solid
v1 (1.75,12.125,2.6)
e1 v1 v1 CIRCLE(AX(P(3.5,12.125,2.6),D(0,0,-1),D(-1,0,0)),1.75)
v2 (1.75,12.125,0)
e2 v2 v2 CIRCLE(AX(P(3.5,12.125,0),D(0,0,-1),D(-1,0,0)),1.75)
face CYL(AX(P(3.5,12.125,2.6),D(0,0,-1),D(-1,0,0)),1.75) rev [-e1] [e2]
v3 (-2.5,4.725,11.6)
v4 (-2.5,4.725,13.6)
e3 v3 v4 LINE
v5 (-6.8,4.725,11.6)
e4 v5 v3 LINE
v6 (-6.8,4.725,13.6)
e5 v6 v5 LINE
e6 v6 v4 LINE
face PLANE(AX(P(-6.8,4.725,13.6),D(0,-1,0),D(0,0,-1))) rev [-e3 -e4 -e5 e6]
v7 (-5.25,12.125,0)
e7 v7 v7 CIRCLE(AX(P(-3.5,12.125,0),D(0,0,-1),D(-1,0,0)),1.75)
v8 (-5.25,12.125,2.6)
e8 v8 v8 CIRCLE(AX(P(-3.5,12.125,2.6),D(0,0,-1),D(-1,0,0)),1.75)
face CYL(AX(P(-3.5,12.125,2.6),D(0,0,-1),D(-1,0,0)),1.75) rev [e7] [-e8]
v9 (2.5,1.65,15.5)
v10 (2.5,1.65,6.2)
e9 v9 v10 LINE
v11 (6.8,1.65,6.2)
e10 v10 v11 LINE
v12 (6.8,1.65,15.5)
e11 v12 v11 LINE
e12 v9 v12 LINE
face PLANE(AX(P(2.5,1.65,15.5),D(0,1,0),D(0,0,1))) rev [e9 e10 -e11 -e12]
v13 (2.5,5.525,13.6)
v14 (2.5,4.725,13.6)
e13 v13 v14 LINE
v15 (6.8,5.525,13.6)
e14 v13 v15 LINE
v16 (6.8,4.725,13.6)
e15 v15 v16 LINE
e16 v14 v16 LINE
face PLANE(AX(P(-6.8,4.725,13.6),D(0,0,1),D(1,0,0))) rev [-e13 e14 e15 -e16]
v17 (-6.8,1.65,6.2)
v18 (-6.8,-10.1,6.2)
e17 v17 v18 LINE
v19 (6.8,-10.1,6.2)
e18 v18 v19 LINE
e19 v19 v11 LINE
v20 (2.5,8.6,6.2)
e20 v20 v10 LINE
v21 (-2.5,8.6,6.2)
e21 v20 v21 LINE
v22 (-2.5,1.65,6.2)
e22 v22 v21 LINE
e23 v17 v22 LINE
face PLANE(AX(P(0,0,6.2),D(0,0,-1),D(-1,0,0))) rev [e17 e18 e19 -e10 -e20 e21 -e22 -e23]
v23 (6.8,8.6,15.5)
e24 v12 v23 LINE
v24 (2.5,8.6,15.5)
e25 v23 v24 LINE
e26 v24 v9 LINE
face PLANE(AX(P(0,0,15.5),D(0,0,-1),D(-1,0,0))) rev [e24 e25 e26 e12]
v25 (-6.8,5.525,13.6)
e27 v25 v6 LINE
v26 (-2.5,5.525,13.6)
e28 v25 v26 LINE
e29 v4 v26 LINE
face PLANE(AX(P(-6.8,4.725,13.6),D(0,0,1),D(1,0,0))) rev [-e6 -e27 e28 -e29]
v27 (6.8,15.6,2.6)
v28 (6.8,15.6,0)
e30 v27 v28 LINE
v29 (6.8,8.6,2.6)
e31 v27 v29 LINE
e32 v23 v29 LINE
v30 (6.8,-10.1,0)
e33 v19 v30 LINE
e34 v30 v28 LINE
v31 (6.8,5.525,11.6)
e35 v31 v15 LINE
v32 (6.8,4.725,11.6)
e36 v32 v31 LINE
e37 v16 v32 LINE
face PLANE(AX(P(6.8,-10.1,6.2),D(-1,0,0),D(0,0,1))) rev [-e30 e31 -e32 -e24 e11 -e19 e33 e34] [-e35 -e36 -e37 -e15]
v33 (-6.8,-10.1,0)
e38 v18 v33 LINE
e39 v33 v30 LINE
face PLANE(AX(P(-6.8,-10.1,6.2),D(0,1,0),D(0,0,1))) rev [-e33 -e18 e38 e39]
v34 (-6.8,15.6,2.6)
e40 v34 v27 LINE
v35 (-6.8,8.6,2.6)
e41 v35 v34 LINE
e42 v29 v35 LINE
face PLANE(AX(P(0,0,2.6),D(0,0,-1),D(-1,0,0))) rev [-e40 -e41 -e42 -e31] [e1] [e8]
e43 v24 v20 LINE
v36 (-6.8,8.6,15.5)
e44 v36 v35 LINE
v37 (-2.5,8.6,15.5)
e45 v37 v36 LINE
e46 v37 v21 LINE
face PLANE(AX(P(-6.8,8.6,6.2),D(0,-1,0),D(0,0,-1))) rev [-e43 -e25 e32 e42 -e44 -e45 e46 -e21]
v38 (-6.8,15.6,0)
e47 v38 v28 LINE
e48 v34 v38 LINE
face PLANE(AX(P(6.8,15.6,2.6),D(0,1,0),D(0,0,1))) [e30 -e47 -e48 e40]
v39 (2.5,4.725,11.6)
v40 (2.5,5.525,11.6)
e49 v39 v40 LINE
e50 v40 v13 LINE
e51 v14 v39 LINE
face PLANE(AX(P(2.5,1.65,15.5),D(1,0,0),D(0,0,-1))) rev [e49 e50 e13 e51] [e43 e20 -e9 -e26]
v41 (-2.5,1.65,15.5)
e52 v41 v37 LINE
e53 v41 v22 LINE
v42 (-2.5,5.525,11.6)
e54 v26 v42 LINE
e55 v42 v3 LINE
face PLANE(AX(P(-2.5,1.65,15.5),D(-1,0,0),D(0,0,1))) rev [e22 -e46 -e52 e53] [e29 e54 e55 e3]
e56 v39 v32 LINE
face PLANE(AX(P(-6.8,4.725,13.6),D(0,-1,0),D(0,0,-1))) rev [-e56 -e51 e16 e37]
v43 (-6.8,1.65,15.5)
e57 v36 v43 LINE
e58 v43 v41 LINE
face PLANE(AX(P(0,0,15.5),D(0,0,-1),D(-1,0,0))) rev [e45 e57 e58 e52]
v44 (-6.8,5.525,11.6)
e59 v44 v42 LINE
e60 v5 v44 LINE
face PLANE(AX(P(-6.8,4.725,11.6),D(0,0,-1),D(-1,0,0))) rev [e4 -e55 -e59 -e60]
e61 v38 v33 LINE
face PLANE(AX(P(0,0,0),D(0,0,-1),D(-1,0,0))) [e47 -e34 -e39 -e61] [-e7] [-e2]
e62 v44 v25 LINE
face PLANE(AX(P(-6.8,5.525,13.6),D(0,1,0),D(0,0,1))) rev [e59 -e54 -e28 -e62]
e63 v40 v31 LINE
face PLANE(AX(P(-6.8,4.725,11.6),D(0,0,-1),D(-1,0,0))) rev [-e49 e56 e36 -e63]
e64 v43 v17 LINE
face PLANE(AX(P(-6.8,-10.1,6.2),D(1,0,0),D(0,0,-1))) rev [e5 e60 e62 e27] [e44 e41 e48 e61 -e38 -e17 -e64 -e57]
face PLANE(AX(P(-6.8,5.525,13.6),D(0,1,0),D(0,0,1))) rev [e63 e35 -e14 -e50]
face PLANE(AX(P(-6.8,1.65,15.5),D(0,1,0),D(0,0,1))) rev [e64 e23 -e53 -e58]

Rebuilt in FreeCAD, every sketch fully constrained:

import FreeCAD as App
import Part
import Sketcher

doc = App.newDocument("Part")
body = doc.addObject("PartDesign::Body", "Body")

# Sketch on XY plane
sketch1 = body.newObject("Sketcher::SketchObject", "Sketch")
sketch1.AttachmentSupport = (doc.getObject("XY_Plane"), [""])
sketch1.MapMode = "FlatFace"
sketch1.addGeometry(Part.LineSegment(App.Vector(-7, 9, 0), App.Vector(-7, -10, 0)), False)
sketch1.addGeometry(Part.LineSegment(App.Vector(-7, -10, 0), App.Vector(7, -10, 0)), False)
sketch1.addGeometry(Part.LineSegment(App.Vector(7, -10, 0), App.Vector(7, 9, 0)), False)
sketch1.addGeometry(Part.LineSegment(App.Vector(7, 9, 0), App.Vector(-7, 9, 0)), False)
sketch1.addConstraint(Sketcher.Constraint("Coincident", 0, 2, 1, 1))
sketch1.addConstraint(Sketcher.Constraint("Coincident", 1, 2, 2, 1))
sketch1.addConstraint(Sketcher.Constraint("Coincident", 2, 2, 3, 1))
sketch1.addConstraint(Sketcher.Constraint("Coincident", 3, 2, 0, 1))
sketch1.addConstraint(Sketcher.Constraint("Vertical", 0))
sketch1.addConstraint(Sketcher.Constraint("Horizontal", 1))
sketch1.addConstraint(Sketcher.Constraint("Vertical", 2))
sketch1.addConstraint(Sketcher.Constraint("Horizontal", 3))
sketch1.addConstraint(Sketcher.Constraint("DistanceX", 1, 1, 1, 2, 13.6))
sketch1.addConstraint(Sketcher.Constraint("DistanceY", 0, 2, 0, 1, 18.7))
sketch1.addConstraint(Sketcher.Constraint("DistanceX", 0, 2, -1, 1, 6.8))
sketch1.addConstraint(Sketcher.Constraint("DistanceY", 0, 2, -1, 1, 10.1))
pad1 = body.newObject("PartDesign::Pad", "Pad")
pad1.Profile = sketch1
pad1.Length = 6.2

# Sketch on XY plane
sketch2 = body.newObject("Sketcher::SketchObject", "Sketch001")
sketch2.AttachmentSupport = (doc.getObject("XY_Plane"), [""])
sketch2.MapMode = "FlatFace"
sketch2.AttachmentOffset = App.Placement(App.Vector(0, 0, 6.2), App.Rotation())
sketch2.addGeometry(Part.LineSegment(App.Vector(2.5, 8.6, 0), App.Vector(2.5, 1.6, 0)), False)
sketch2.addGeometry(Part.LineSegment(App.Vector(2.5, 1.6, 0), App.Vector(6.8, 1.6, 0)), False)
sketch2.addGeometry(Part.LineSegment(App.Vector(6.8, 1.6, 0), App.Vector(6.8, 8.6, 0)), False)
sketch2.addGeometry(Part.LineSegment(App.Vector(6.8, 8.6, 0), App.Vector(2.5, 8.6, 0)), False)
sketch2.addGeometry(Part.LineSegment(App.Vector(-6.8, 8.6, 0), App.Vector(-6.8, 1.6, 0)), False)
sketch2.addGeometry(Part.LineSegment(App.Vector(-6.8, 1.6, 0), App.Vector(-2.5, 1.6, 0)), False)
sketch2.addGeometry(Part.LineSegment(App.Vector(-2.5, 1.6, 0), App.Vector(-2.5, 8.6, 0)), False)
sketch2.addGeometry(Part.LineSegment(App.Vector(-2.5, 8.6, 0), App.Vector(-6.8, 8.6, 0)), False)
sketch2.addConstraint(Sketcher.Constraint("Coincident", 0, 2, 1, 1))
sketch2.addConstraint(Sketcher.Constraint("Coincident", 1, 2, 2, 1))
sketch2.addConstraint(Sketcher.Constraint("Coincident", 2, 2, 3, 1))
sketch2.addConstraint(Sketcher.Constraint("Coincident", 3, 2, 0, 1))
sketch2.addConstraint(Sketcher.Constraint("Coincident", 4, 2, 5, 1))
sketch2.addConstraint(Sketcher.Constraint("Coincident", 5, 2, 6, 1))
sketch2.addConstraint(Sketcher.Constraint("Coincident", 6, 2, 7, 1))
sketch2.addConstraint(Sketcher.Constraint("Coincident", 7, 2, 4, 1))
sketch2.addConstraint(Sketcher.Constraint("Vertical", 0))
sketch2.addConstraint(Sketcher.Constraint("Horizontal", 1))
sketch2.addConstraint(Sketcher.Constraint("Vertical", 2))
sketch2.addConstraint(Sketcher.Constraint("Horizontal", 3))
sketch2.addConstraint(Sketcher.Constraint("Vertical", 4))
sketch2.addConstraint(Sketcher.Constraint("Horizontal", 5))
sketch2.addConstraint(Sketcher.Constraint("Vertical", 6))
sketch2.addConstraint(Sketcher.Constraint("Horizontal", 7))
sketch2.addConstraint(Sketcher.Constraint("Symmetric", 1, 2, 4, 2, -2))
sketch2.addConstraint(Sketcher.Constraint("Symmetric", 3, 2, 6, 2, -2))
sketch2.addConstraint(Sketcher.Constraint("DistanceX", 1, 1, 1, 2, 4.3))
sketch2.addConstraint(Sketcher.Constraint("DistanceX", 5, 2, 0, 2, 5.0))
sketch2.addConstraint(Sketcher.Constraint("DistanceY", 0, 2, 0, 1, 6.95))
sketch2.addConstraint(Sketcher.Constraint("DistanceY", -1, 1, 2, 2, 8.6))
pad2 = body.newObject("PartDesign::Pad", "Pad001")
pad2.Profile = sketch2
pad2.Length = 9.3

# Sketch on XY plane
sketch3 = body.newObject("Sketcher::SketchObject", "Sketch002")
sketch3.AttachmentSupport = (doc.getObject("XY_Plane"), [""])
sketch3.MapMode = "FlatFace"
sketch3.addGeometry(Part.LineSegment(App.Vector(6.8, 15.6, 0), App.Vector(6.8, 8.6, 0)), False)
sketch3.addGeometry(Part.LineSegment(App.Vector(6.8, 8.6, 0), App.Vector(-6.8, 8.6, 0)), False)
sketch3.addGeometry(Part.LineSegment(App.Vector(-6.8, 8.6, 0), App.Vector(-6.8, 15.6, 0)), False)
sketch3.addGeometry(Part.LineSegment(App.Vector(-6.8, 15.6, 0), App.Vector(6.8, 15.6, 0)), False)
sketch3.addGeometry(Part.Circle(App.Vector(3.5, 12.1, 0), App.Vector(0, 0, 1), 1.8), False)
sketch3.addGeometry(Part.Circle(App.Vector(-3.5, 12.1, 0), App.Vector(0, 0, 1), 1.8), False)
sketch3.addConstraint(Sketcher.Constraint("Coincident", 0, 2, 1, 1))
sketch3.addConstraint(Sketcher.Constraint("Coincident", 1, 2, 2, 1))
sketch3.addConstraint(Sketcher.Constraint("Coincident", 2, 2, 3, 1))
sketch3.addConstraint(Sketcher.Constraint("Coincident", 3, 2, 0, 1))
sketch3.addConstraint(Sketcher.Constraint("Vertical", 0))
sketch3.addConstraint(Sketcher.Constraint("Horizontal", 1))
sketch3.addConstraint(Sketcher.Constraint("Vertical", 2))
sketch3.addConstraint(Sketcher.Constraint("Horizontal", 3))
sketch3.addConstraint(Sketcher.Constraint("Equal", 4, 5))
sketch3.addConstraint(Sketcher.Constraint("Symmetric", 4, 3, 5, 3, -2))
sketch3.addConstraint(Sketcher.Constraint("Diameter", 4, 3.5))
sketch3.addConstraint(Sketcher.Constraint("DistanceY", 0, 2, 0, 1, 7.0))
sketch3.addConstraint(Sketcher.Constraint("DistanceX", 1, 2, 1, 1, 13.6))
sketch3.addConstraint(Sketcher.Constraint("DistanceX", 5, 3, 4, 3, 7.0))
sketch3.addConstraint(Sketcher.Constraint("DistanceX", -1, 1, 0, 2, 6.8))
sketch3.addConstraint(Sketcher.Constraint("DistanceY", -1, 1, 0, 2, 8.6))
sketch3.addConstraint(Sketcher.Constraint("DistanceY", -1, 1, 4, 3, 12.125))
pad3 = body.newObject("PartDesign::Pad", "Pad002")
pad3.Profile = sketch3
pad3.Length = 2.6

# Sketch on YZ plane
sketch4 = body.newObject("Sketcher::SketchObject", "Sketch003")
sketch4.AttachmentSupport = (doc.getObject("YZ_Plane"), [""])
sketch4.MapMode = "FlatFace"
sketch4.AttachmentOffset = App.Placement(App.Vector(0, 0, 6.8), App.Rotation())
sketch4.addGeometry(Part.LineSegment(App.Vector(5.5, 13.6, 0), App.Vector(4.7, 13.6, 0)), False)
sketch4.addGeometry(Part.LineSegment(App.Vector(4.7, 13.6, 0), App.Vector(4.7, 11.6, 0)), False)
sketch4.addGeometry(Part.LineSegment(App.Vector(4.7, 11.6, 0), App.Vector(5.5, 11.6, 0)), False)
sketch4.addGeometry(Part.LineSegment(App.Vector(5.5, 11.6, 0), App.Vector(5.5, 13.6, 0)), False)
sketch4.addConstraint(Sketcher.Constraint("Coincident", 0, 2, 1, 1))
sketch4.addConstraint(Sketcher.Constraint("Coincident", 1, 2, 2, 1))
sketch4.addConstraint(Sketcher.Constraint("Coincident", 2, 2, 3, 1))
sketch4.addConstraint(Sketcher.Constraint("Coincident", 3, 2, 0, 1))
sketch4.addConstraint(Sketcher.Constraint("Horizontal", 0))
sketch4.addConstraint(Sketcher.Constraint("Vertical", 1))
sketch4.addConstraint(Sketcher.Constraint("Horizontal", 2))
sketch4.addConstraint(Sketcher.Constraint("Vertical", 3))
sketch4.addConstraint(Sketcher.Constraint("DistanceY", 1, 2, 1, 1, 2.0))
sketch4.addConstraint(Sketcher.Constraint("DistanceX", 0, 2, 0, 1, 0.8))
sketch4.addConstraint(Sketcher.Constraint("DistanceY", -1, 1, 0, 2, 13.6))
sketch4.addConstraint(Sketcher.Constraint("DistanceX", -1, 1, 0, 2, 4.725))
pocket1 = body.newObject("PartDesign::Pocket", "Pocket")
pocket1.Profile = sketch4
pocket1.Type = "ThroughAll"

doc.recompute()
